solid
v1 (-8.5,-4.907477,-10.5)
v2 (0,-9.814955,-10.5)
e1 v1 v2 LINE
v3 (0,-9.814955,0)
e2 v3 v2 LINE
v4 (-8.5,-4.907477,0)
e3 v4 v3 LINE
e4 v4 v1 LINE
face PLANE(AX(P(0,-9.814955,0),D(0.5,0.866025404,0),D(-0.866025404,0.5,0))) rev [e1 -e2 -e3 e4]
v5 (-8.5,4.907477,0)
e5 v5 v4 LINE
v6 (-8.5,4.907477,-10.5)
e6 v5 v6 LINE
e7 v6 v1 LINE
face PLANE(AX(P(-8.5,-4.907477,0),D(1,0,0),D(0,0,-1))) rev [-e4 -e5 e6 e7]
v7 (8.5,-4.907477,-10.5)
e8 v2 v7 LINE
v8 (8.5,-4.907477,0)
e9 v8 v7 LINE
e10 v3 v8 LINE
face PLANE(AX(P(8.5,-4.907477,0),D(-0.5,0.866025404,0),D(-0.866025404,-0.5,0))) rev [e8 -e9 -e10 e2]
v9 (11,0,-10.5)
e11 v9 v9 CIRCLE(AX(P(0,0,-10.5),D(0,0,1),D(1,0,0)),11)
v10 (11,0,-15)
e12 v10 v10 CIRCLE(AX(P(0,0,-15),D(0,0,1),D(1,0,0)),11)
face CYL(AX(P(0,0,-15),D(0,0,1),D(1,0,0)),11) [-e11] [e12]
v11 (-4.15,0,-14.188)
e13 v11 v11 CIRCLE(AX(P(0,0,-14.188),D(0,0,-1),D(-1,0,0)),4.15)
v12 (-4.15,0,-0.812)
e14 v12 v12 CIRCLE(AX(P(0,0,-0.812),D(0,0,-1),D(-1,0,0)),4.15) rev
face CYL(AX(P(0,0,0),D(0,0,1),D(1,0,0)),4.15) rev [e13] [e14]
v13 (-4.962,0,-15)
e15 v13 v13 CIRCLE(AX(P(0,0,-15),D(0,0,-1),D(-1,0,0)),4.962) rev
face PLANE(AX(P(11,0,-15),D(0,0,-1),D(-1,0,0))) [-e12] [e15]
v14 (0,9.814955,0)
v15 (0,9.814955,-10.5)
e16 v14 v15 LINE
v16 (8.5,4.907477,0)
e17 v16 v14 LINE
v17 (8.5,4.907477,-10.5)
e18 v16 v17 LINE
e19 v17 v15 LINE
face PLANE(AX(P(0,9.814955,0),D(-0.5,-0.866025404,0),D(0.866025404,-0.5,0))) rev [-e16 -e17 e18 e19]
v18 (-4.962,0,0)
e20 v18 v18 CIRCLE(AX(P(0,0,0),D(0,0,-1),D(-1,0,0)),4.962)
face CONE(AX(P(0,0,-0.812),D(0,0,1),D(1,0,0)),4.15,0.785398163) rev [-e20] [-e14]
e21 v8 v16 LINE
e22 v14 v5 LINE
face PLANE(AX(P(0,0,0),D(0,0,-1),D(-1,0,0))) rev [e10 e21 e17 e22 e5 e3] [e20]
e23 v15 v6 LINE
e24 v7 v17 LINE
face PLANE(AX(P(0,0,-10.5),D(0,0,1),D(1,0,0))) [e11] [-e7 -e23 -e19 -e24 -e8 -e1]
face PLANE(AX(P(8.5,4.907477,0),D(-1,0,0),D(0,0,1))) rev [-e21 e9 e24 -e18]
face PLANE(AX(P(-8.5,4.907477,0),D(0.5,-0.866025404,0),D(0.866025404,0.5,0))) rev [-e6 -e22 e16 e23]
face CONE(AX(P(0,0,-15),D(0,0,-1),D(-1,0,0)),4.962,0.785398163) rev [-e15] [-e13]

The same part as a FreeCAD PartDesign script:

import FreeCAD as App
import Part
import Sketcher

V = App.Vector
Q = App.Units.Quantity


def edges_at(feature, points):
    """Names of the edges that pass closest to the given points."""
    edges = feature.Shape.Edges
    near = lambda p: min(range(len(edges)), key=lambda i: edges[i].distToShape(Part.Vertex(*p))[0])
    return sorted({f"Edge{near(p) + 1}" for p in points})

doc = App.newDocument("Part")
params = doc.addObject("Spreadsheet::Sheet", "Params")
for row, (alias, value) in enumerate([
    ("sketch1_width", "11 mm"),
    ("sketch1_height", "4.5 mm"),
    ("revolution_angle", "360 deg"),
    ("pad1_length", "10.5 mm"),
    ("sketch3_diameter", "8.3 mm"),
    ("hole_diameter", "8.3 mm"),
    ("hole_depth", "15 mm"),
    ("chamfer_size", "0.812 mm"),
], start=1):
    params.set(f"A{row}", alias)
    params.set(f"B{row}", "=" + value)
    params.setAlias(f"B{row}", alias)

body = doc.addObject("PartDesign::Body", "Body")

sketch1 = body.newObject("Sketcher::SketchObject", "Sketch")
sketch1.AttachmentSupport = (doc.getObject("XZ_Plane"), [""])
sketch1.MapMode = "FlatFace"
sketch1.addGeometry(Part.LineSegment(V(0, -15, 0), V(0, -10.5, 0)), False)
sketch1.addGeometry(Part.LineSegment(V(0, -10.5, 0), V(11, -10.5, 0)), False)
sketch1.addGeometry(Part.LineSegment(V(11, -10.5, 0), V(11, -15, 0)), False)
sketch1.addGeometry(Part.LineSegment(V(11, -15, 0), V(0, -15, 0)), False)
sketch1.addConstraint(Sketcher.Constraint("Coincident", 0, 2, 1, 1))
sketch1.addConstraint(Sketcher.Constraint("Coincident", 1, 2, 2, 1))
sketch1.addConstraint(Sketcher.Constraint("Coincident", 2, 2, 3, 1))
sketch1.addConstraint(Sketcher.Constraint("Coincident", 3, 2, 0, 1))
sketch1.addConstraint(Sketcher.Constraint("Vertical", 0))
sketch1.addConstraint(Sketcher.Constraint("Horizontal", 1))
sketch1.addConstraint(Sketcher.Constraint("Vertical", 2))
sketch1.addConstraint(Sketcher.Constraint("Horizontal", 3))
sketch1.addConstraint(Sketcher.Constraint("PointOnObject", 0, 2, -2))
sketch1.addConstraint(Sketcher.Constraint("DistanceX", 1, 1, 1, 2, Q("11 mm")))
sketch1.addConstraint(Sketcher.Constraint("DistanceY", 0, 1, 0, 2, Q("4.5 mm")))
sketch1.addConstraint(Sketcher.Constraint("DistanceY", 2, 2, -1, 1, Q("15 mm")))
sketch1.setExpression("Constraints[9]", "Params.sketch1_width")
sketch1.setExpression("Constraints[10]", "Params.sketch1_height")
revolution = body.newObject("PartDesign::Revolution", "Revolution")
revolution.Profile = sketch1
revolution.ReferenceAxis = (sketch1, ["V_Axis"])
revolution.setExpression("Angle", "Params.revolution_angle")

sketch2 = body.newObject("Sketcher::SketchObject", "Sketch001")
sketch2.AttachmentSupport = (doc.getObject("XY_Plane"), [""])
sketch2.MapMode = "FlatFace"
sketch2.AttachmentOffset = App.Placement(V(0, 0, -10.5), App.Rotation())
sketch2.addGeometry(Part.LineSegment(V(-8, 5, 0), V(-8, -5, 0)), False)
sketch2.addGeometry(Part.LineSegment(V(-8, -5, 0), V(0, -10, 0)), False)
sketch2.addGeometry(Part.LineSegment(V(0, -10, 0), V(8, -5, 0)), False)
sketch2.addGeometry(Part.LineSegment(V(8, -5, 0), V(8, 5, 0)), False)
sketch2.addGeometry(Part.LineSegment(V(8, 5, 0), V(0, 10, 0)), False)
sketch2.addGeometry(Part.LineSegment(V(0, 10, 0), V(-8, 5, 0)), False)
sketch2.addConstraint(Sketcher.Constraint("Coincident", 0, 2, 1, 1))
sketch2.addConstraint(Sketcher.Constraint("Coincident", 1, 2, 2, 1))
sketch2.addConstraint(Sketcher.Constraint("Coincident", 2, 2, 3, 1))
sketch2.addConstraint(Sketcher.Constraint("Coincident", 3, 2, 4, 1))
sketch2.addConstraint(Sketcher.Constraint("Coincident", 4, 2, 5, 1))
sketch2.addConstraint(Sketcher.Constraint("Coincident", 5, 2, 0, 1))
sketch2.addConstraint(Sketcher.Constraint("Vertical", 0))
sketch2.addConstraint(Sketcher.Constraint("Vertical", 3))
sketch2.addConstraint(Sketcher.Constraint("Symmetric", 0, 2, 3, 2, -1, 1))
sketch2.addConstraint(Sketcher.Constraint("Symmetric", 1, 2, 4, 2, -1, 1))
sketch2.addConstraint(Sketcher.Constraint("PointOnObject", 1, 2, -2))
sketch2.addConstraint(Sketcher.Constraint("Parallel", 2, 5))
sketch2.addConstraint(Sketcher.Constraint("Horizontal", 0, 2, 2, 2))
sketch2.addConstraint(Sketcher.Constraint("Angle", 1, Q("-30 deg")))
sketch2.addConstraint(Sketcher.Constraint("DistanceX", 0, 2, 2, 2, Q("17 mm")))
sketch2.addConstraint(Sketcher.Constraint("DistanceY", 0, 2, 0, 1, Q("9.814955 mm")))
pad1 = body.newObject("PartDesign::Pad", "Pad")
pad1.Profile = sketch2
pad1.setExpression("Length", "Params.pad1_length")

sketch3 = body.newObject("Sketcher::SketchObject", "Sketch002")
sketch3.AttachmentSupport = (doc.getObject("XY_Plane"), [""])
sketch3.MapMode = "FlatFace"
sketch3.addGeometry(Part.Circle(V(0, 0, 0), V(0, 0, 1), 4.2), False)
sketch3.addConstraint(Sketcher.Constraint("Coincident", 0, 3, -1, 1))
sketch3.addConstraint(Sketcher.Constraint("Diameter", 0, Q("8.3 mm")))
sketch3.setExpression("Constraints[1]", "Params.sketch3_diameter")
doc.recompute()
hole = body.newObject("PartDesign::Hole", "Hole")
hole.Profile = sketch3
hole.ThreadType = "None"
hole.setExpression("Diameter", "Params.hole_diameter")
hole.DepthType = "Dimension"
hole.setExpression("Depth", "Params.hole_depth")
hole.DrillPoint = "Flat"
doc.recompute()

chamfer = body.newObject("PartDesign::Chamfer", "Chamfer")
chamfer.Base = (hole, edges_at(hole, [(4.15, 0, 0), (4.15, 0, -15)]))
chamfer.setExpression("Size", "Params.chamfer_size")

doc.recompute()
